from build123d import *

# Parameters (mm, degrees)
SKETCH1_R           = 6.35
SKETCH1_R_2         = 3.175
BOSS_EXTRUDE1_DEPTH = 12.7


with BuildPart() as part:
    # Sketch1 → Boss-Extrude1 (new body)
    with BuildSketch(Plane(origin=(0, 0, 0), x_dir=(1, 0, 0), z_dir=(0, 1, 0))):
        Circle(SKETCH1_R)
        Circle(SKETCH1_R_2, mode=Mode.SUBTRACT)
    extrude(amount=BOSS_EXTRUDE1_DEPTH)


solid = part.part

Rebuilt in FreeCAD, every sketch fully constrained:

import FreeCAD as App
import Part
import Sketcher

V = App.Vector
Q = App.Units.Quantity

doc = App.newDocument("Part")
body = doc.addObject("PartDesign::Body", "Body")

# Sketch on XZ plane
sketch1 = body.newObject("Sketcher::SketchObject", "Sketch")
sketch1.AttachmentSupport = (doc.getObject("XZ_Plane"), [""])
sketch1.MapMode = "FlatFace"
sketch1.addGeometry([
    Part.Circle(V(0, 0, 0), V(0, 0, 1), 6.3),
    Part.Circle(V(0, 0, 0), V(0, 0, 1), 3.2),
], False)
sketch1.addConstraint([
    Sketcher.Constraint("Coincident", 0, 3, -1, 1),
    Sketcher.Constraint("Coincident", 1, 3, -1, 1),
    Sketcher.Constraint("Diameter", 0, Q("0.5 in")),
    Sketcher.Constraint("Diameter", 1, Q("0.25 in")),
])
pad1 = body.newObject("PartDesign::Pad", "Pad")
pad1.Profile = sketch1
pad1.Length = Q("0.5 in")
pad1.Reversed = True

doc.recompute()
